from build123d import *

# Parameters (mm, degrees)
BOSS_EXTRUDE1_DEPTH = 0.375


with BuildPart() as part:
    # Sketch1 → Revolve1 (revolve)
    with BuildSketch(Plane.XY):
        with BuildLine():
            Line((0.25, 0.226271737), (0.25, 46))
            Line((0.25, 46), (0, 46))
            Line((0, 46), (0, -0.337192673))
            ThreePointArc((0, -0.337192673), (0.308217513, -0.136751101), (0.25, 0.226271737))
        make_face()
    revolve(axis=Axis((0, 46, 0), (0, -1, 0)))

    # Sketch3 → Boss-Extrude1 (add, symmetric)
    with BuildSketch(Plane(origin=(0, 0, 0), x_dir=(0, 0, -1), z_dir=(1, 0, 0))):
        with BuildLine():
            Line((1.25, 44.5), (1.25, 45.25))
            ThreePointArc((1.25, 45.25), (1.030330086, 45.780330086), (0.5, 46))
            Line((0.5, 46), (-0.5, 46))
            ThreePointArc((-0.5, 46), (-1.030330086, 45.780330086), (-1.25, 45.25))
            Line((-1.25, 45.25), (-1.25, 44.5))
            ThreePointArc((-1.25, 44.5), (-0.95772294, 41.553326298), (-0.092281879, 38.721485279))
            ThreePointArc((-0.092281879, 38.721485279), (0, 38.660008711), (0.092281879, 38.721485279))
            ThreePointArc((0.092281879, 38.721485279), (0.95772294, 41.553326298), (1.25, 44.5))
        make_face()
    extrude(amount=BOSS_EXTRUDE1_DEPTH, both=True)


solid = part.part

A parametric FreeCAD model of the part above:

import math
import FreeCAD as App
import Part
import Sketcher
Q = App.Units.Quantity

doc = App.newDocument("Part")
body = doc.addObject("PartDesign::Body", "Body")

# Sketch on XY plane
sketch1 = body.newObject("Sketcher::SketchObject", "Sketch")
sketch1.AttachmentSupport = (doc.getObject("XY_Plane"), [""])
sketch1.MapMode = "FlatFace"
sketch1.addGeometry([
    Part.LineSegment(App.Vector(0.25, 0.23, 0), App.Vector(0.25, 46, 0)),
    Part.LineSegment(App.Vector(0.25, 46, 0), App.Vector(0, 46, 0)),
    Part.LineSegment(App.Vector(0, 46, 0), App.Vector(0, -0.34, 0)),
    Part.ArcOfCircle(Part.Circle(App.Vector(0, 0, 0), App.Vector(0, 0, 1), 0.34), math.radians(-90), math.radians(42)),
], False)
sketch1.addConstraint([
    Sketcher.Constraint("Coincident", 0, 2, 1, 1),
    Sketcher.Constraint("Coincident", 1, 2, 2, 1),
    Sketcher.Constraint("Coincident", 2, 2, 3, 1),
    Sketcher.Constraint("Coincident", 3, 2, 0, 1),
    Sketcher.Constraint("Vertical", 0),
    Sketcher.Constraint("Horizontal", 1),
    Sketcher.Constraint("Vertical", 2),
    Sketcher.Constraint("Coincident", 3, 3, -1, 1),
    Sketcher.Constraint("PointOnObject", 1, 2, -2),
    Sketcher.Constraint("DistanceY", -1, 1, 0, 2, Q("46 mm")),
    Sketcher.Constraint("DistanceX", 1, 2, 1, 1, Q("0.25 mm")),
    Sketcher.Constraint("Radius", 3, Q("0.337193 mm")),
])
revolution = body.newObject("PartDesign::Revolution", "Revolution")
revolution.Profile = sketch1
revolution.ReferenceAxis = (sketch1, ["V_Axis"])
revolution.Angle = 360

# Sketch on YZ plane
sketch2 = body.newObject("Sketcher::SketchObject", "Sketch001")
sketch2.AttachmentSupport = (doc.getObject("YZ_Plane"), [""])
sketch2.MapMode = "FlatFace"
sketch2.addGeometry([
    Part.LineSegment(App.Vector(44.5, -1.25, 0), App.Vector(45.25, -1.25, 0)),  # 0
    Part.ArcOfCircle(Part.Circle(App.Vector(45.25, -0.5, 0), App.Vector(0, 0, 1), 0.75), math.radians(-90), math.radians(0)),  # 1
    Part.LineSegment(App.Vector(46, -0.5, 0), App.Vector(46, 0.5, 0)),  # 2
    Part.ArcOfCircle(Part.Circle(App.Vector(45.25, 0.5, 0), App.Vector(0, 0, 1), 0.75), math.radians(0), math.radians(90)),  # 3
    Part.LineSegment(App.Vector(45.25, 1.25, 0), App.Vector(44.5, 1.25, 0)),  # 4
    Part.ArcOfCircle(Part.Circle(App.Vector(44.5, -13.75, 0), App.Vector(0, 0, 1), 15), math.radians(90), math.radians(113)),  # 5
    Part.ArcOfCircle(Part.Circle(App.Vector(38.76, 0, 0), App.Vector(0, 0, 1), 0.1), math.radians(113), math.radians(247)),  # 6
    Part.ArcOfCircle(Part.Circle(App.Vector(44.5, 13.75, 0), App.Vector(0, 0, 1), 15), math.radians(-113), math.radians(-90)),  # 7
], False)
sketch2.addConstraint([
    Sketcher.Constraint("Tangent", 0, 2, 1, 1),
    Sketcher.Constraint("Tangent", 1, 2, 2, 1),
    Sketcher.Constraint("Tangent", 2, 2, 3, 1),
    Sketcher.Constraint("Tangent", 3, 2, 4, 1),
    Sketcher.Constraint("Tangent", 4, 2, 5, 1),
    Sketcher.Constraint("Tangent", 5, 2, 6, 1),
    Sketcher.Constraint("Tangent", 6, 2, 7, 1),
    Sketcher.Constraint("Tangent", 7, 2, 0, 1),
    Sketcher.Constraint("Horizontal", 0),
    Sketcher.Constraint("Vertical", 2),
    Sketcher.Constraint("Horizontal", 4),
    Sketcher.Constraint("Equal", 1, 3),
    Sketcher.Constraint("Equal", 5, 7),
    Sketcher.Constraint("Symmetric", 5, 3, 7, 3, -1),
    Sketcher.Constraint("Radius", 5, Q("15 mm")),
    Sketcher.Constraint("Radius", 6, Q("0.1 mm")),
    Sketcher.Constraint("DistanceY", 2, 1, 2, 2, Q("1 mm")),
    Sketcher.Constraint("Radius", 1, Q("0.75 mm")),
    Sketcher.Constraint("DistanceX", -1, 1, 1, 2, Q("46 mm")),
    Sketcher.Constraint("DistanceX", 0, 1, 0, 2, Q("0.75 mm")),
])
pad1 = body.newObject("PartDesign::Pad", "Pad")
pad1.Profile = sketch2
pad1.Length = 0.75
pad1.Midplane = True

doc.recompute()
